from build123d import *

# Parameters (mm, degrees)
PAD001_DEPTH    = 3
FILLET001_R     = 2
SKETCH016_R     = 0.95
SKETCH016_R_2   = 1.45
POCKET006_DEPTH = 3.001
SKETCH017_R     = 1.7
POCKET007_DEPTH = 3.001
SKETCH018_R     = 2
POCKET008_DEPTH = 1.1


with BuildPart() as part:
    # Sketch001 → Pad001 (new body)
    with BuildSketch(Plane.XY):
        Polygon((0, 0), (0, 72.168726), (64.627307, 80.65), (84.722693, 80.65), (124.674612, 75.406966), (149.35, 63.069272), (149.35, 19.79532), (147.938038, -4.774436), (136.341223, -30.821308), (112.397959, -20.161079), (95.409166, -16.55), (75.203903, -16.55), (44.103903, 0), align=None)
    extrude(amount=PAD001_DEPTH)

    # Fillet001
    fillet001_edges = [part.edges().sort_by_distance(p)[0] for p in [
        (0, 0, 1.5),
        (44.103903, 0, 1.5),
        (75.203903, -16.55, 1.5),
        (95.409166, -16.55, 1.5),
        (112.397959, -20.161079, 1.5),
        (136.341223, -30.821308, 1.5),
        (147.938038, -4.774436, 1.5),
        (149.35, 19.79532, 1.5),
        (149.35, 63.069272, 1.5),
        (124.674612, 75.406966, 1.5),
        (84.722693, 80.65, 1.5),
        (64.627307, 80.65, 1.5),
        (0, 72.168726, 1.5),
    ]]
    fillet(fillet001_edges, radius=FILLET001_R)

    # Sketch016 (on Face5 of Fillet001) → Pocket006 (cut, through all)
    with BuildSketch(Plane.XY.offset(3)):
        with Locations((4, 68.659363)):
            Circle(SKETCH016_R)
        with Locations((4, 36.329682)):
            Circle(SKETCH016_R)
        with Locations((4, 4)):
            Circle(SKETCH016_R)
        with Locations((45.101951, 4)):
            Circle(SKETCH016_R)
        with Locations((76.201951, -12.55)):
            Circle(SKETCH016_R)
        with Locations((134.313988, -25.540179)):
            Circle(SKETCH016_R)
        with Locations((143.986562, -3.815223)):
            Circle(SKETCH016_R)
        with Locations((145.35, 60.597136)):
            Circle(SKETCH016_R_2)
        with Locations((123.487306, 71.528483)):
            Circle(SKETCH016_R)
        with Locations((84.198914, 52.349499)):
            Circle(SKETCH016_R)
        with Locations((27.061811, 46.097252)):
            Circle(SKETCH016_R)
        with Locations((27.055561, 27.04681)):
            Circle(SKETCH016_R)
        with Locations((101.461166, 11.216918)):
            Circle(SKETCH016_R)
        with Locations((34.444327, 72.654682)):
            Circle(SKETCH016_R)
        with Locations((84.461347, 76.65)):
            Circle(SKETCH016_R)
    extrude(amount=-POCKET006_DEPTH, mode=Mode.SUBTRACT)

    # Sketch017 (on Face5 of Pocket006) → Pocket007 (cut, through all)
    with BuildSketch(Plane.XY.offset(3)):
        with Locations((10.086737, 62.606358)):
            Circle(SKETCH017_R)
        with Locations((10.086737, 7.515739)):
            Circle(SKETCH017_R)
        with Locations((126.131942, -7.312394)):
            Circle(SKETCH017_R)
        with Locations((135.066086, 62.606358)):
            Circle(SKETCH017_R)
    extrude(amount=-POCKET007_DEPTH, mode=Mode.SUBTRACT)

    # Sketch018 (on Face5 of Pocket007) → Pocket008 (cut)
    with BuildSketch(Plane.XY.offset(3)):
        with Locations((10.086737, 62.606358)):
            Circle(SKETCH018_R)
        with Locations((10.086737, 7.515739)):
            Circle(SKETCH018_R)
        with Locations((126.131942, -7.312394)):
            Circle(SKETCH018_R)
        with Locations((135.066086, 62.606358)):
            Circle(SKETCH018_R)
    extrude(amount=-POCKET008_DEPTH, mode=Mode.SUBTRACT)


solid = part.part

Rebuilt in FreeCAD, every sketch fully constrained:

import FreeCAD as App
import Part
import Sketcher
from FreeCAD import Vector
Q = App.Units.Quantity


def edges_at(feature, points):
    """Names of the edges that pass closest to the given points."""
    edges = feature.Shape.Edges
    near = lambda p: min(range(len(edges)), key=lambda i: edges[i].distToShape(Part.Vertex(*p))[0])
    return sorted({f"Edge{near(p) + 1}" for p in points})

doc = App.newDocument("Part")
body = doc.addObject("PartDesign::Body", "Body")

# Sketch on XY plane
sketch1 = body.newObject("Sketcher::SketchObject", "Sketch")
sketch1.AttachmentSupport = (doc.getObject("XY_Plane"), [""])
sketch1.MapMode = "FlatFace"
sketch1.addGeometry(Part.LineSegment(Vector(0, 72, 0), Vector(0, 0, 0)), False)
sketch1.addGeometry(Part.LineSegment(Vector(0, 0, 0), Vector(44, 0, 0)), False)
sketch1.addGeometry(Part.LineSegment(Vector(44, 0, 0), Vector(75, -17, 0)), False)
sketch1.addGeometry(Part.LineSegment(Vector(75, -17, 0), Vector(95, -17, 0)), False)
sketch1.addGeometry(Part.LineSegment(Vector(95, -17, 0), Vector(112, -20, 0)), False)
sketch1.addGeometry(Part.LineSegment(Vector(112, -20, 0), Vector(136, -31, 0)), False)
sketch1.addGeometry(Part.LineSegment(Vector(136, -31, 0), Vector(148, -5, 0)), False)
sketch1.addGeometry(Part.LineSegment(Vector(148, -5, 0), Vector(149, 20, 0)), False)
sketch1.addGeometry(Part.LineSegment(Vector(149, 20, 0), Vector(149, 63, 0)), False)
sketch1.addGeometry(Part.LineSegment(Vector(149, 63, 0), Vector(125, 75, 0)), False)
sketch1.addGeometry(Part.LineSegment(Vector(125, 75, 0), Vector(85, 81, 0)), False)
sketch1.addGeometry(Part.LineSegment(Vector(85, 81, 0), Vector(65, 81, 0)), False)
sketch1.addGeometry(Part.LineSegment(Vector(65, 81, 0), Vector(0, 72, 0)), False)
sketch1.addConstraint(Sketcher.Constraint("Coincident", 0, 2, 1, 1))
sketch1.addConstraint(Sketcher.Constraint("Coincident", 1, 2, 2, 1))
sketch1.addConstraint(Sketcher.Constraint("Coincident", 2, 2, 3, 1))
sketch1.addConstraint(Sketcher.Constraint("Coincident", 3, 2, 4, 1))
sketch1.addConstraint(Sketcher.Constraint("Coincident", 4, 2, 5, 1))
sketch1.addConstraint(Sketcher.Constraint("Coincident", 5, 2, 6, 1))
sketch1.addConstraint(Sketcher.Constraint("Coincident", 6, 2, 7, 1))
sketch1.addConstraint(Sketcher.Constraint("Coincident", 7, 2, 8, 1))
sketch1.addConstraint(Sketcher.Constraint("Coincident", 8, 2, 9, 1))
sketch1.addConstraint(Sketcher.Constraint("Coincident", 9, 2, 10, 1))
sketch1.addConstraint(Sketcher.Constraint("Coincident", 10, 2, 11, 1))
sketch1.addConstraint(Sketcher.Constraint("Coincident", 11, 2, 12, 1))
sketch1.addConstraint(Sketcher.Constraint("Coincident", 12, 2, 0, 1))
sketch1.addConstraint(Sketcher.Constraint("Vertical", 0))
sketch1.addConstraint(Sketcher.Constraint("Horizontal", 1))
sketch1.addConstraint(Sketcher.Constraint("Horizontal", 3))
sketch1.addConstraint(Sketcher.Constraint("Vertical", 8))
sketch1.addConstraint(Sketcher.Constraint("Horizontal", 11))
sketch1.addConstraint(Sketcher.Constraint("Coincident", 0, 2, -1, 1))
sketch1.addConstraint(Sketcher.Constraint("Perpendicular", 5, 6))
sketch1.addConstraint(Sketcher.Constraint("Angle", 4, Q("-11.999999 deg")))
sketch1.addConstraint(Sketcher.Constraint("Angle", 5, Q("-24.000002 deg")))
sketch1.addConstraint(Sketcher.Constraint("DistanceX", 1, 2, 2, 2, Q("31.1 mm")))
sketch1.addConstraint(Sketcher.Constraint("DistanceY", 2, 2, 10, 2, Q("97.2 mm")))
sketch1.addConstraint(Sketcher.Constraint("DistanceY", 2, 2, -1, 1, Q("16.55 mm")))
sketch1.addConstraint(Sketcher.Constraint("DistanceX", -1, 1, 7, 2, Q("149.35 mm")))
sketch1.addConstraint(Sketcher.Constraint("DistanceY", 8, 1, 8, 2, Q("43.273952 mm")))
sketch1.addConstraint(Sketcher.Constraint("DistanceY", 4, 2, 7, 2, Q("39.956399 mm")))
sketch1.addConstraint(Sketcher.Constraint("DistanceY", 6, 2, 9, 2, Q("80.181402 mm")))
sketch1.addConstraint(Sketcher.Constraint("Distance", 6, Q("28.511851 mm")))
sketch1.addConstraint(Sketcher.Constraint("Distance", 10, Q("40.294481 mm")))
sketch1.addConstraint(Sketcher.Constraint("DistanceX", 1, 1, 1, 2, Q("44.103903 mm")))
sketch1.addConstraint(Sketcher.Constraint("DistanceX", 3, 1, 3, 2, Q("20.205263 mm")))
sketch1.addConstraint(Sketcher.Constraint("DistanceX", 11, 2, 11, 1, Q("20.095386 mm")))
sketch1.addConstraint(Sketcher.Constraint("DistanceY", 0, 2, 0, 1, Q("72.168726 mm")))
sketch1.addConstraint(Sketcher.Constraint("DistanceX", -1, 1, 4, 2, Q("112.397959 mm")))
sketch1.addConstraint(Sketcher.Constraint("DistanceX", -1, 1, 6, 2, Q("147.938038 mm")))
sketch1.addConstraint(Sketcher.Constraint("DistanceX", -1, 1, 9, 2, Q("124.674612 mm")))
pad1 = body.newObject("PartDesign::Pad", "Pad")
pad1.Profile = sketch1
pad1.Length = 3
doc.recompute()

fillet = body.newObject("PartDesign::Fillet", "Fillet")
fillet.Base = (pad1, edges_at(pad1, [
    (0, 0, 1.5),
    (44.104, 0, 1.5),
    (75.204, -16.55, 1.5),
    (95.409, -16.55, 1.5),
    (112.398, -20.161, 1.5),
    (136.341, -30.821, 1.5),
    (147.938, -4.774, 1.5),
    (149.35, 19.795, 1.5),
    (149.35, 63.069, 1.5),
    (124.675, 75.407, 1.5),
    (84.723, 80.65, 1.5),
    (64.627, 80.65, 1.5),
    (0, 72.169, 1.5),
]))
fillet.Radius = 2

# Sketch on XY plane
sketch2 = body.newObject("Sketcher::SketchObject", "Sketch001")
sketch2.AttachmentSupport = (doc.getObject("XY_Plane"), [""])
sketch2.MapMode = "FlatFace"
sketch2.AttachmentOffset = App.Placement(Vector(0, 0, 3), App.Rotation())
sketch2.addGeometry(Part.Circle(Vector(4, 68.7, 0), Vector(0, 0, 1), 0.9), False)
sketch2.addGeometry(Part.Circle(Vector(4, 36.3, 0), Vector(0, 0, 1), 0.9), False)
sketch2.addGeometry(Part.Circle(Vector(4, 4, 0), Vector(0, 0, 1), 0.9), False)
sketch2.addGeometry(Part.Circle(Vector(45.1, 4, 0), Vector(0, 0, 1), 0.9), False)
sketch2.addGeometry(Part.Circle(Vector(76.2, -12.6, 0), Vector(0, 0, 1), 0.9), False)
sketch2.addGeometry(Part.Circle(Vector(134.3, -25.5, 0), Vector(0, 0, 1), 0.9), False)
sketch2.addGeometry(Part.Circle(Vector(144, -3.8, 0), Vector(0, 0, 1), 0.9), False)
sketch2.addGeometry(Part.Circle(Vector(145.3, 60.6, 0), Vector(0, 0, 1), 1.4), False)
sketch2.addGeometry(Part.Circle(Vector(123.5, 71.5, 0), Vector(0, 0, 1), 0.9), False)
sketch2.addGeometry(Part.Circle(Vector(84.2, 52.3, 0), Vector(0, 0, 1), 0.9), False)
sketch2.addGeometry(Part.Circle(Vector(27.1, 46.1, 0), Vector(0, 0, 1), 0.9), False)
sketch2.addGeometry(Part.Circle(Vector(27.1, 27, 0), Vector(0, 0, 1), 0.9), False)
sketch2.addGeometry(Part.Circle(Vector(101.5, 11.2, 0), Vector(0, 0, 1), 0.9), False)
sketch2.addGeometry(Part.Circle(Vector(34.4, 72.7, 0), Vector(0, 0, 1), 0.9), False)
sketch2.addGeometry(Part.Circle(Vector(84.5, 76.7, 0), Vector(0, 0, 1), 0.9), False)
sketch2.addConstraint(Sketcher.Constraint("Equal", 0, 1))
sketch2.addConstraint(Sketcher.Constraint("Equal", 1, 2))
sketch2.addConstraint(Sketcher.Constraint("Equal", 2, 3))
sketch2.addConstraint(Sketcher.Constraint("Equal", 3, 4))
sketch2.addConstraint(Sketcher.Constraint("Equal", 4, 5))
sketch2.addConstraint(Sketcher.Constraint("Equal", 5, 6))
sketch2.addConstraint(Sketcher.Constraint("Equal", 6, 8))
sketch2.addConstraint(Sketcher.Constraint("Equal", 8, 9))
sketch2.addConstraint(Sketcher.Constraint("Equal", 9, 10))
sketch2.addConstraint(Sketcher.Constraint("Equal", 10, 11))
sketch2.addConstraint(Sketcher.Constraint("Equal", 11, 12))
sketch2.addConstraint(Sketcher.Constraint("Equal", 12, 13))
sketch2.addConstraint(Sketcher.Constraint("Equal", 13, 14))
sketch2.addConstraint(Sketcher.Constraint("Horizontal", 2, 3, 3, 3))
sketch2.addConstraint(Sketcher.Constraint("Vertical", 0, 3, 1, 3))
sketch2.addConstraint(Sketcher.Constraint("Vertical", 1, 3, 2, 3))
sketch2.addConstraint(Sketcher.Constraint("Diameter", 0, Q("1.9 mm")))
sketch2.addConstraint(Sketcher.Constraint("Diameter", 7, Q("2.9 mm")))
sketch2.addConstraint(Sketcher.Constraint("DistanceX", -1, 1, 0, 3, Q("4 mm")))
sketch2.addConstraint(Sketcher.Constraint("DistanceY", -1, 1, 2, 3, Q("4 mm")))
sketch2.addConstraint(Sketcher.Constraint("DistanceX", 3, 3, 4, 3, Q("31.1 mm")))
sketch2.addConstraint(Sketcher.Constraint("DistanceY", 4, 3, -1, 1, Q("12.55 mm")))
sketch2.addConstraint(Sketcher.Constraint("DistanceX", -1, 1, 7, 3, Q("145.35 mm")))
sketch2.addConstraint(Sketcher.Constraint("DistanceY", -1, 1, 14, 3, Q("76.65 mm")))
sketch2.addConstraint(Sketcher.Constraint("DistanceY", 1, 3, 13, 3, Q("36.325 mm")))
sketch2.addConstraint(Sketcher.Constraint("DistanceY", -1, 1, 9, 3, Q("52.349499 mm")))
sketch2.addConstraint(Sketcher.Constraint("DistanceY", -1, 1, 1, 3, Q("36.329682 mm")))
sketch2.addConstraint(Sketcher.Constraint("DistanceX", -1, 1, 3, 3, Q("45.101951 mm")))
sketch2.addConstraint(Sketcher.Constraint("DistanceX", -1, 1, 5, 3, Q("134.313988 mm")))
sketch2.addConstraint(Sketcher.Constraint("DistanceY", 5, 3, -1, 1, Q("25.540179 mm")))
sketch2.addConstraint(Sketcher.Constraint("DistanceX", -1, 1, 6, 3, Q("143.986562 mm")))
sketch2.addConstraint(Sketcher.Constraint("DistanceX", -1, 1, 10, 3, Q("27.061811 mm")))
sketch2.addConstraint(Sketcher.Constraint("DistanceY", -1, 1, 10, 3, Q("46.097252 mm")))
sketch2.addConstraint(Sketcher.Constraint("DistanceX", -1, 1, 11, 3, Q("27.055561 mm")))
sketch2.addConstraint(Sketcher.Constraint("DistanceY", -1, 1, 11, 3, Q("27.04681 mm")))
sketch2.addConstraint(Sketcher.Constraint("DistanceY", 1, 3, 0, 3, Q("32.329681 mm")))
sketch2.addConstraint(Sketcher.Constraint("DistanceY", 6, 3, 7, 3, Q("64.412359 mm")))
sketch2.addConstraint(Sketcher.Constraint("DistanceX", 8, 3, 5, 3, Q("10.826682 mm")))
sketch2.addConstraint(Sketcher.Constraint("DistanceY", 5, 3, 8, 3, Q("97.068662 mm")))
sketch2.addConstraint(Sketcher.Constraint("DistanceY", 4, 3, 12, 3, Q("23.766918 mm")))
sketch2.addConstraint(Sketcher.Constraint("DistanceY", 6, 3, 12, 3, Q("15.032141 mm")))
sketch2.addConstraint(Sketcher.Constraint("DistanceX", 12, 3, 5, 3, Q("32.852822 mm")))
sketch2.addConstraint(Sketcher.Constraint("DistanceX", 14, 3, 8, 3, Q("39.025959 mm")))
sketch2.addConstraint(Sketcher.Constraint("DistanceX", 13, 3, 14, 3, Q("50.01702 mm")))
sketch2.addConstraint(Sketcher.Constraint("DistanceX", -1, 1, 9, 3, Q("84.198914 mm")))
pocket1 = body.newObject("PartDesign::Pocket", "Pocket")
pocket1.Profile = sketch2
pocket1.Type = "ThroughAll"

# Sketch on XY plane
sketch3 = body.newObject("Sketcher::SketchObject", "Sketch002")
sketch3.AttachmentSupport = (doc.getObject("XY_Plane"), [""])
sketch3.MapMode = "FlatFace"
sketch3.AttachmentOffset = App.Placement(Vector(0, 0, 3), App.Rotation())
sketch3.addGeometry(Part.Circle(Vector(10.1, 62.6, 0), Vector(0, 0, 1), 1.7), False)
sketch3.addGeometry(Part.Circle(Vector(10.1, 7.5, 0), Vector(0, 0, 1), 1.7), False)
sketch3.addGeometry(Part.Circle(Vector(126.1, -7.3, 0), Vector(0, 0, 1), 1.7), False)
sketch3.addGeometry(Part.Circle(Vector(135.1, 62.6, 0), Vector(0, 0, 1), 1.7), False)
sketch3.addConstraint(Sketcher.Constraint("Equal", 0, 1))
sketch3.addConstraint(Sketcher.Constraint("Equal", 1, 2))
sketch3.addConstraint(Sketcher.Constraint("Equal", 2, 3))
sketch3.addConstraint(Sketcher.Constraint("Horizontal", 0, 3, 3, 3))
sketch3.addConstraint(Sketcher.Constraint("Vertical", 0, 3, 1, 3))
sketch3.addConstraint(Sketcher.Constraint("Diameter", 0, Q("3.4 mm")))
sketch3.addConstraint(Sketcher.Constraint("DistanceY", -1, 1, 1, 3, Q("7.515739 mm")))
sketch3.addConstraint(Sketcher.Constraint("DistanceX", -1, 1, 2, 3, Q("126.131942 mm")))
sketch3.addConstraint(Sketcher.Constraint("DistanceY", 1, 3, 0, 3, Q("55.090619 mm")))
sketch3.addConstraint(Sketcher.Constraint("DistanceY", 2, 3, 0, 3, Q("69.918752 mm")))
sketch3.addConstraint(Sketcher.Constraint("DistanceX", 0, 3, 3, 3, Q("124.979349 mm")))
sketch3.addConstraint(Sketcher.Constraint("DistanceX", -1, 1, 0, 3, Q("10.086737 mm")))
pocket2 = body.newObject("PartDesign::Pocket", "Pocket001")
pocket2.Profile = sketch3
pocket2.Type = "ThroughAll"

# Sketch on XY plane
sketch4 = body.newObject("Sketcher::SketchObject", "Sketch003")
sketch4.AttachmentSupport = (doc.getObject("XY_Plane"), [""])
sketch4.MapMode = "FlatFace"
sketch4.AttachmentOffset = App.Placement(Vector(0, 0, 3), App.Rotation())
sketch4.addGeometry(Part.Circle(Vector(10.1, 62.6, 0), Vector(0, 0, 1), 2), False)
sketch4.addGeometry(Part.Circle(Vector(10.1, 7.5, 0), Vector(0, 0, 1), 2), False)
sketch4.addGeometry(Part.Circle(Vector(126.1, -7.3, 0), Vector(0, 0, 1), 2), False)
sketch4.addGeometry(Part.Circle(Vector(135.1, 62.6, 0), Vector(0, 0, 1), 2), False)
sketch4.addConstraint(Sketcher.Constraint("Equal", 0, 1))
sketch4.addConstraint(Sketcher.Constraint("Equal", 1, 2))
sketch4.addConstraint(Sketcher.Constraint("Equal", 2, 3))
sketch4.addConstraint(Sketcher.Constraint("Horizontal", 0, 3, 3, 3))
sketch4.addConstraint(Sketcher.Constraint("Vertical", 0, 3, 1, 3))
sketch4.addConstraint(Sketcher.Constraint("Diameter", 0, Q("4 mm")))
sketch4.addConstraint(Sketcher.Constraint("DistanceY", -1, 1, 1, 3, Q("7.515739 mm")))
sketch4.addConstraint(Sketcher.Constraint("DistanceX", -1, 1, 2, 3, Q("126.131942 mm")))
sketch4.addConstraint(Sketcher.Constraint("DistanceY", 1, 3, 0, 3, Q("55.090619 mm")))
sketch4.addConstraint(Sketcher.Constraint("DistanceY", 2, 3, 0, 3, Q("69.918752 mm")))
sketch4.addConstraint(Sketcher.Constraint("DistanceX", 0, 3, 3, 3, Q("124.979349 mm")))
sketch4.addConstraint(Sketcher.Constraint("DistanceX", -1, 1, 0, 3, Q("10.086737 mm")))
pocket3 = body.newObject("PartDesign::Pocket", "Pocket002")
pocket3.Profile = sketch4
pocket3.Length = 1.1

doc.recompute()
